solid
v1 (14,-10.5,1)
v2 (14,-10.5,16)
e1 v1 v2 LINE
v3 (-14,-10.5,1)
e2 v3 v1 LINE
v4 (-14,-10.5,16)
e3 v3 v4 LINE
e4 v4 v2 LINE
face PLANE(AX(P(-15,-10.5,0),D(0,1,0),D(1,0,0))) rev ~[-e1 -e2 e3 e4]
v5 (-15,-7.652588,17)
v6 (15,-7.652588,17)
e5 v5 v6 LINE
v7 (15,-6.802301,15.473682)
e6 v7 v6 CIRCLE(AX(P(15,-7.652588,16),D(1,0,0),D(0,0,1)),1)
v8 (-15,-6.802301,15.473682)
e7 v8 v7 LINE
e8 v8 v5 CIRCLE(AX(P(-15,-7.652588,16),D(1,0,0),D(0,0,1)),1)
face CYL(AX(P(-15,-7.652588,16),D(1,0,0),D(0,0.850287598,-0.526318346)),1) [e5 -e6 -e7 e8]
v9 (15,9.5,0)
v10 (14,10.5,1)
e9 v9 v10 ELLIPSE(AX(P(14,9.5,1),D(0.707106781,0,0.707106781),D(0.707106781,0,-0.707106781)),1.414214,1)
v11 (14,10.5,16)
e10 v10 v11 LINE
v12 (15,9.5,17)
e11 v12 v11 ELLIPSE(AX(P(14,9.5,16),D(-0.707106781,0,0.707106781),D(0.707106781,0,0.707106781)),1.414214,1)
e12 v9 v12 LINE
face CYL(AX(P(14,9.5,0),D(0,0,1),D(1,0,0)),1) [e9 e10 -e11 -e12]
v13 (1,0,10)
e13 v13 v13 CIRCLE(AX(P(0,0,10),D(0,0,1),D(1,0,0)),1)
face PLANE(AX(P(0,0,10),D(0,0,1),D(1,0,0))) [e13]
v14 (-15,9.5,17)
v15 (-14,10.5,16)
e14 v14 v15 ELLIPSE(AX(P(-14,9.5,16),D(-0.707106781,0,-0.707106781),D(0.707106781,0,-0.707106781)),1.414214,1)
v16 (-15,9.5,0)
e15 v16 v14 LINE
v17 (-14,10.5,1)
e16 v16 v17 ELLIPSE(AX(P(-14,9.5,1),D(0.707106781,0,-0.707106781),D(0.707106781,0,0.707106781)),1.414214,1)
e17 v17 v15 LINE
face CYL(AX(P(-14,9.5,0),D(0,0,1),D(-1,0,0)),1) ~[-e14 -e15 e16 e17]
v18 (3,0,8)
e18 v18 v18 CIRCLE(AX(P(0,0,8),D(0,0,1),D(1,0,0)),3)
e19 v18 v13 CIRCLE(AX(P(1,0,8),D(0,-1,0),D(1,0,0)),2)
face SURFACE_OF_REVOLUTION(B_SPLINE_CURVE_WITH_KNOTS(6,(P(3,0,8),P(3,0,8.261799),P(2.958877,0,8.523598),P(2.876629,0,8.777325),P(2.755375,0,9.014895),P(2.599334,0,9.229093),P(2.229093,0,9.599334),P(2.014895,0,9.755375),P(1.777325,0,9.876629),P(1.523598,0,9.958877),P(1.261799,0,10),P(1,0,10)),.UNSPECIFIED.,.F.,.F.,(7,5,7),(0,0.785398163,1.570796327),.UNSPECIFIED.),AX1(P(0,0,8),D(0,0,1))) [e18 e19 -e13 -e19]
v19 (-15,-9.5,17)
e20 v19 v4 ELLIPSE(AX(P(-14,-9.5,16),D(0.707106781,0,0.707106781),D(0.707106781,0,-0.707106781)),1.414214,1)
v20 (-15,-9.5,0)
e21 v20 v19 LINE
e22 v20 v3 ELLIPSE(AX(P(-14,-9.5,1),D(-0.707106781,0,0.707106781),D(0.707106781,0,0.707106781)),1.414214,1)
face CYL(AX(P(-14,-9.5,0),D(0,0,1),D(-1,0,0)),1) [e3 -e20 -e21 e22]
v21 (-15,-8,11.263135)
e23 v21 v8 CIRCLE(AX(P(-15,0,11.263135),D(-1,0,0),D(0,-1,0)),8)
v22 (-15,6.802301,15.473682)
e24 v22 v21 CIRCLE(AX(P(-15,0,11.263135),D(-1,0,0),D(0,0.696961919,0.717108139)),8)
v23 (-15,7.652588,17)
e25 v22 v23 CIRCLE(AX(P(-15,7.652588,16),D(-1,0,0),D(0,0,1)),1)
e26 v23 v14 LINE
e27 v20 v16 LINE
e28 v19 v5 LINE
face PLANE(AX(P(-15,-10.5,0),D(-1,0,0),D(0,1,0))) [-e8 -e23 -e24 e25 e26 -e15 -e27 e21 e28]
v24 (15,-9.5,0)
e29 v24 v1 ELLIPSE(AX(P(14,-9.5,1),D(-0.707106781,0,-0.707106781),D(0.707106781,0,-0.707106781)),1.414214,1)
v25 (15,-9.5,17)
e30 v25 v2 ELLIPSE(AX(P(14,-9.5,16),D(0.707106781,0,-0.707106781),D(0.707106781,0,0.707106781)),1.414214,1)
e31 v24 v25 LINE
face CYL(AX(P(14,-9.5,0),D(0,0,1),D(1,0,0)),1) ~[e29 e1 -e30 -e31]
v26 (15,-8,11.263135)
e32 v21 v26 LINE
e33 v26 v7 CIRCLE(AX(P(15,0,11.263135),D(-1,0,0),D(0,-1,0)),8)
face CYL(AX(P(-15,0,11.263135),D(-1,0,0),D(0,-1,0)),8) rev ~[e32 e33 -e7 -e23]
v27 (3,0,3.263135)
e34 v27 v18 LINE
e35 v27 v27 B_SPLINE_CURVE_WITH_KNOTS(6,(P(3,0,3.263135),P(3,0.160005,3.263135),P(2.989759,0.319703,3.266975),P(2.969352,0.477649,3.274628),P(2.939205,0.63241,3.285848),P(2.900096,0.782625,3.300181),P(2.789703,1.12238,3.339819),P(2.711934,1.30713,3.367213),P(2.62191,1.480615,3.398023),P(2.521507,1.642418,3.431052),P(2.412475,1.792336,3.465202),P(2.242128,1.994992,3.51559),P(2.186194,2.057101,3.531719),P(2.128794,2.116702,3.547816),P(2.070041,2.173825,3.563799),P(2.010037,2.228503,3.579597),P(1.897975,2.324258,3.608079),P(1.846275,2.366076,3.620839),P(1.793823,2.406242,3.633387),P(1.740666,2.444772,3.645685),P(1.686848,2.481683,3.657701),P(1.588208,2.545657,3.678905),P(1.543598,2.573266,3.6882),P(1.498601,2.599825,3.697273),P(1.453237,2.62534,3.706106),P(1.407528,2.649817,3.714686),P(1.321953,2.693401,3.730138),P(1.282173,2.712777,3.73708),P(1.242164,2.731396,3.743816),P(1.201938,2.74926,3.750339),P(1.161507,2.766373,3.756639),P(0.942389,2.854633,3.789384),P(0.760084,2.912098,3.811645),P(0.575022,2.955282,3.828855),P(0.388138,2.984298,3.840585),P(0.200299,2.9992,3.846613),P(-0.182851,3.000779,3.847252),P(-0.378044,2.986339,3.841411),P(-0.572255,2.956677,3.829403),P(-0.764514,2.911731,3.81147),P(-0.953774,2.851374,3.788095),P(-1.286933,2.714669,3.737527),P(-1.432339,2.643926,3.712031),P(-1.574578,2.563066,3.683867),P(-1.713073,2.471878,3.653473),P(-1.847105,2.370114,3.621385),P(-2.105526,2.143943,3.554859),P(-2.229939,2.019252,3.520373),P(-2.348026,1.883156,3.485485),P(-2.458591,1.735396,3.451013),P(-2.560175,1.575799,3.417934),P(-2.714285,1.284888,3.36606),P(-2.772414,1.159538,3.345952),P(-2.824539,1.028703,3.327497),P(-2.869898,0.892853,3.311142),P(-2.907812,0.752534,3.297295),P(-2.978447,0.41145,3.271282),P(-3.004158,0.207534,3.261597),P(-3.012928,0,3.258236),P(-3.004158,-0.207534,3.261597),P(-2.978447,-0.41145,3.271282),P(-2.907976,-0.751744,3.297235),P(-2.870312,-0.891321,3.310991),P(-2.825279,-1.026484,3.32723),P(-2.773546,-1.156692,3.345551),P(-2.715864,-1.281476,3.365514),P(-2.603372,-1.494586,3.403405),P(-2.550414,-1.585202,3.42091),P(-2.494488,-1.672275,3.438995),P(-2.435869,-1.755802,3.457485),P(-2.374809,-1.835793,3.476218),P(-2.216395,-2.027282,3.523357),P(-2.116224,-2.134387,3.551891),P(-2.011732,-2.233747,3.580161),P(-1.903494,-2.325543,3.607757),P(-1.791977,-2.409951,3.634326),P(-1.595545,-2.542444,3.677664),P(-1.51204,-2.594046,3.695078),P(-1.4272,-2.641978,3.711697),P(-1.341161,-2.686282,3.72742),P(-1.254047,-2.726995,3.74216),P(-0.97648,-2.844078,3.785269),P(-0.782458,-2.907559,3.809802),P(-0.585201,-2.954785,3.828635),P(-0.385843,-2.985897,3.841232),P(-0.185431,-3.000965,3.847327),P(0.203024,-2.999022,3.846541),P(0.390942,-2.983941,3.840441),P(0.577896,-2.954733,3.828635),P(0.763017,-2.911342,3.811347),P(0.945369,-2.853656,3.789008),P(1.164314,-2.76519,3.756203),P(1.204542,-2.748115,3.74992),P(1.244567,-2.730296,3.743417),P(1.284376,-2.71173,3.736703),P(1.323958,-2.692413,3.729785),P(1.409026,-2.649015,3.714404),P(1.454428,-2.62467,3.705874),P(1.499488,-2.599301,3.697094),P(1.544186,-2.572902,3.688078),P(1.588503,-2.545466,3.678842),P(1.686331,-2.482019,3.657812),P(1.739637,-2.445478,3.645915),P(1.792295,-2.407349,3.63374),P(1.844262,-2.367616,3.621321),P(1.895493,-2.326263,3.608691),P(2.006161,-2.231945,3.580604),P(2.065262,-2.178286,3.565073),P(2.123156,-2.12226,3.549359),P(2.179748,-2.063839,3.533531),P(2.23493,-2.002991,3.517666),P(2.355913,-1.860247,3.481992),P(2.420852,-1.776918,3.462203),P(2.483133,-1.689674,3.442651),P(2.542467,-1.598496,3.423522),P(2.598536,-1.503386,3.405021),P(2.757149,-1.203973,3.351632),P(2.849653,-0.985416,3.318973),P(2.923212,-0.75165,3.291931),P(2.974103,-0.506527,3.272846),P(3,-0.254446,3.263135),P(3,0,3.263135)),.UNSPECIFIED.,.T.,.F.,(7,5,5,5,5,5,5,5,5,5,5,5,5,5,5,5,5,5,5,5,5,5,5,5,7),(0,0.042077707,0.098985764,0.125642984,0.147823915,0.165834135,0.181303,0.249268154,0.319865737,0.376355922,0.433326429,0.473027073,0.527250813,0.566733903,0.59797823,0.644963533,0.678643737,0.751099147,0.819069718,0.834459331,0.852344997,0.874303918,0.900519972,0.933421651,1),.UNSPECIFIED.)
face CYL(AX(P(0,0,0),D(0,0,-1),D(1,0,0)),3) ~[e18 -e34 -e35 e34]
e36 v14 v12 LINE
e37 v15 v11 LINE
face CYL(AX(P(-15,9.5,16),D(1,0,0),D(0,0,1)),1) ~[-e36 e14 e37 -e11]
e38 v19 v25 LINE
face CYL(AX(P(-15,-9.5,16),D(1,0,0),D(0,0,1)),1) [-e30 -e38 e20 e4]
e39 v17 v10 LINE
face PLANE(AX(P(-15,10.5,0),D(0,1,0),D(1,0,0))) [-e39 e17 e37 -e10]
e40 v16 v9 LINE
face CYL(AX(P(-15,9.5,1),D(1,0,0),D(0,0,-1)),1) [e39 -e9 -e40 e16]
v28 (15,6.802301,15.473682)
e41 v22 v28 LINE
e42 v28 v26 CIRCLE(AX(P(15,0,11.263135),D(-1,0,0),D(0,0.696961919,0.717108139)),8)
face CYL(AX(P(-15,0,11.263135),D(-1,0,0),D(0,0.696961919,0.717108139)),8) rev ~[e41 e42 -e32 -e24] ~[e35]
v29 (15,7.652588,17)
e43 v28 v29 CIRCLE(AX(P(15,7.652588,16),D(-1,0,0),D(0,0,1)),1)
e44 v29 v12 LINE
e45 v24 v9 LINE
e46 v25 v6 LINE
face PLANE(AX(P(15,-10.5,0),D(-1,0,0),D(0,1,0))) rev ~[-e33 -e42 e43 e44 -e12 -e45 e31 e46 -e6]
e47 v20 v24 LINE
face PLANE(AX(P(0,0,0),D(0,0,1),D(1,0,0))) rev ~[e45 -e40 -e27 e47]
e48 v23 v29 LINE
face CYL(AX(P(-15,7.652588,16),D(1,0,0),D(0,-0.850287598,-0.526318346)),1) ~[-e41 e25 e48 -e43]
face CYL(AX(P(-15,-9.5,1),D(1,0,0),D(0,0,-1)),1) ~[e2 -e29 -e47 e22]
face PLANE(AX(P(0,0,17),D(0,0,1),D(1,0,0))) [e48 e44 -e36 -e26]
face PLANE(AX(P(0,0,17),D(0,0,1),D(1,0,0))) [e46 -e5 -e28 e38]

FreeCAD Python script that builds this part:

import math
import FreeCAD as App
import Part
import Sketcher
from FreeCAD import Vector
Q = App.Units.Quantity


def edges_at(feature, points):
    """Names of the edges that pass closest to the given points."""
    edges = feature.Shape.Edges
    near = lambda p: min(range(len(edges)), key=lambda i: edges[i].distToShape(Part.Vertex(*p))[0])
    return sorted({f"Edge{near(p) + 1}" for p in points})


def add_polygon(sketch, points):
    """Adds a closed chain of lines whose ends are joined by coincident constraints."""
    first, n = sketch.GeometryCount, len(points)
    for a, b in zip(points, points[1:] + points[:1]):
        sketch.addGeometry(Part.LineSegment(App.Vector(*a, 0), App.Vector(*b, 0)), False)
    for i in range(n):
        sketch.addConstraint(Sketcher.Constraint("Coincident", first + i, 2, first + (i + 1) % n, 1))

doc = App.newDocument("Part")
body = doc.addObject("PartDesign::Body", "Body")

sketch1 = body.newObject("Sketcher::SketchObject", "Sketch")
sketch1.AttachmentSupport = (doc.getObject("XY_Plane"), [""])
sketch1.MapMode = "FlatFace"
add_polygon(sketch1, [(-15, 10.5), (-15, -10.5), (15, -10.5), (15, 10.5)])
sketch1.addGeometry(Part.Circle(Vector(0, 0, 0), Vector(0, 0, 1), 3), False)
sketch1.addConstraint(Sketcher.Constraint("Vertical", 0))
sketch1.addConstraint(Sketcher.Constraint("Horizontal", 1))
sketch1.addConstraint(Sketcher.Constraint("Vertical", 2))
sketch1.addConstraint(Sketcher.Constraint("Horizontal", 3))
sketch1.addConstraint(Sketcher.Constraint("Coincident", 4, 3, -1, 1))
sketch1.addConstraint(Sketcher.Constraint("Symmetric", 0, 2, 2, 2, -1, 1))
sketch1.addConstraint(Sketcher.Constraint("Diameter", 4, Q("6 mm")))
sketch1.addConstraint(Sketcher.Constraint("DistanceX", 1, 1, 1, 2, Q("30 mm")))
sketch1.addConstraint(Sketcher.Constraint("DistanceY", 0, 2, 0, 1, Q("21 mm")))
pad1 = body.newObject("PartDesign::Pad", "Pad")
pad1.Profile = sketch1
pad1.Length = 17

sketch2 = body.newObject("Sketcher::SketchObject", "Sketch001")
sketch2.AttachmentSupport = (doc.getObject("YZ_Plane"), [""])
sketch2.MapMode = "FlatFace"
sketch2.AttachmentOffset = App.Placement(Vector(0, 0, -15), App.Rotation())
sketch2.addGeometry(Part.ArcOfCircle(Part.Circle(Vector(0, 11, 0), Vector(0, 0, 1), 8), math.radians(180), math.radians(406)), False)
sketch2.addGeometry(Part.ArcOfCircle(Part.Circle(Vector(0, 11, 0), Vector(0, 0, 1), 8), math.radians(134), math.radians(180)), False)
sketch2.addGeometry(Part.LineSegment(Vector(-6, 17, 0), Vector(6, 17, 0)), False)
sketch2.addConstraint(Sketcher.Constraint("Tangent", 0, 1, 1, 2))
sketch2.addConstraint(Sketcher.Constraint("Coincident", 1, 1, 2, 1))
sketch2.addConstraint(Sketcher.Constraint("Coincident", 2, 2, 0, 2))
sketch2.addConstraint(Sketcher.Constraint("Horizontal", 2))
sketch2.addConstraint(Sketcher.Constraint("Equal", 0, 1))
sketch2.addConstraint(Sketcher.Constraint("PointOnObject", 0, 3, -2))
sketch2.addConstraint(Sketcher.Constraint("Horizontal", 1, 3, 0, 1))
sketch2.addConstraint(Sketcher.Constraint("Radius", 0, Q("8 mm")))
sketch2.addConstraint(Sketcher.Constraint("DistanceY", -1, 1, 1, 1, Q("17 mm")))
sketch2.addConstraint(Sketcher.Constraint("DistanceX", 2, 1, 2, 2, Q("11.151391 mm")))
pocket1 = body.newObject("PartDesign::Pocket", "Pocket")
pocket1.Profile = sketch2
pocket1.Length = 35
pocket1.Reversed = True

sketch3 = body.newObject("Sketcher::SketchObject", "Sketch002")
sketch3.AttachmentSupport = (doc.getObject("XY_Plane"), [""])
sketch3.MapMode = "FlatFace"
sketch3.addGeometry(Part.Circle(Vector(0, 0, 0), Vector(0, 0, 1), 3), False)
sketch3.addConstraint(Sketcher.Constraint("Coincident", 0, 3, -1, 1))
sketch3.addConstraint(Sketcher.Constraint("Diameter", 0, Q("6 mm")))
pad2 = body.newObject("PartDesign::Pad", "Pad001")
pad2.Profile = sketch3
pad2.Length = 10
doc.recompute()

fillet = body.newObject("PartDesign::Fillet", "Fillet")
fillet.Base = (pad2, edges_at(pad2, [
    (0, -10.5, 17),
    (0, 10.5, 17),
    (0, 5.576, 17),
    (0, -5.576, 17),
    (0, -10.5, 0),
    (0, 10.5, 0),
    (-15, 10.5, 8.5),
    (15, 10.5, 8.5),
    (15, -10.5, 8.5),
    (-15, -10.5, 8.5),
]))
fillet.Radius = 1
doc.recompute()

fillet2 = body.newObject("PartDesign::Fillet", "Fillet001")
fillet2.Base = (fillet, edges_at(fillet, [(-3, 0, 10)]))
fillet2.Radius = 2

doc.recompute()
